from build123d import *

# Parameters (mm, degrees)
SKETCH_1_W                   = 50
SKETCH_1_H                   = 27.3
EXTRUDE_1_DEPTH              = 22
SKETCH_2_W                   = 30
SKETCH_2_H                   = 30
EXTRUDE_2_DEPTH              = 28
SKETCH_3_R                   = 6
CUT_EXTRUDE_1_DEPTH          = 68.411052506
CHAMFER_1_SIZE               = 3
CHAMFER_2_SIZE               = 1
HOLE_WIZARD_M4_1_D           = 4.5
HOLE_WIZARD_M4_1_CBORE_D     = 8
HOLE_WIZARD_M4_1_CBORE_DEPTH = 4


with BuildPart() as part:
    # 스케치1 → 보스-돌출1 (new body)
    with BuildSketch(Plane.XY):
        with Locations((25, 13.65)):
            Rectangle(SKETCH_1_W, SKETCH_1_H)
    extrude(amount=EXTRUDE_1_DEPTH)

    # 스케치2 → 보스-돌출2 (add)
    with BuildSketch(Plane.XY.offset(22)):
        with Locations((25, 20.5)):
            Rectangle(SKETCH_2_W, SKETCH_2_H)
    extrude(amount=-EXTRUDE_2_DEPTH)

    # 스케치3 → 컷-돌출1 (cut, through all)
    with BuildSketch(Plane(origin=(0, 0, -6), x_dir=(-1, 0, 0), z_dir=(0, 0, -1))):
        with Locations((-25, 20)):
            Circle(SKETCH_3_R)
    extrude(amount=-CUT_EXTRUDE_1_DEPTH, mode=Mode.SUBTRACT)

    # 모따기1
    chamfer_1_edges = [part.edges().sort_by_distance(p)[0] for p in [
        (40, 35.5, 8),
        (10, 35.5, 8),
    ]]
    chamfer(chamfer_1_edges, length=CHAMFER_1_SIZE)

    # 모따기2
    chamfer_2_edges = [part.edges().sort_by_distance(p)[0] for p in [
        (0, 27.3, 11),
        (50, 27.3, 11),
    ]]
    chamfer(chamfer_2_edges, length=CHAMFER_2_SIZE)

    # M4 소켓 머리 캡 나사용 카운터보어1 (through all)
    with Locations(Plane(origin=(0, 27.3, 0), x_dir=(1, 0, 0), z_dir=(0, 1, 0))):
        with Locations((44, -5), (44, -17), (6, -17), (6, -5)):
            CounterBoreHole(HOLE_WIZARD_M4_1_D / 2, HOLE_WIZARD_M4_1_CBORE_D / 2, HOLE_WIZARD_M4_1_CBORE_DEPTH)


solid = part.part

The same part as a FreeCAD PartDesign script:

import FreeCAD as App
import Part
import Sketcher

V = App.Vector


def edges_at(feature, points):
    """Names of the edges that pass closest to the given points."""
    edges = feature.Shape.Edges
    near = lambda p: min(range(len(edges)), key=lambda i: edges[i].distToShape(Part.Vertex(*p))[0])
    return sorted({f"Edge{near(p) + 1}" for p in points})

doc = App.newDocument("Part")
body = doc.addObject("PartDesign::Body", "Body")

# Sketch on XY plane
sketch1 = body.newObject("Sketcher::SketchObject", "Sketch")
sketch1.AttachmentSupport = (doc.getObject("XY_Plane"), [""])
sketch1.MapMode = "FlatFace"
sketch1.addGeometry(Part.LineSegment(V(0, 27.3, 0), V(0, 0, 0)), False)
sketch1.addGeometry(Part.LineSegment(V(0, 0, 0), V(50, 0, 0)), False)
sketch1.addGeometry(Part.LineSegment(V(50, 0, 0), V(50, 27.3, 0)), False)
sketch1.addGeometry(Part.LineSegment(V(50, 27.3, 0), V(0, 27.3, 0)), False)
sketch1.addConstraint(Sketcher.Constraint("Coincident", 0, 2, 1, 1))
sketch1.addConstraint(Sketcher.Constraint("Coincident", 1, 2, 2, 1))
sketch1.addConstraint(Sketcher.Constraint("Coincident", 2, 2, 3, 1))
sketch1.addConstraint(Sketcher.Constraint("Coincident", 3, 2, 0, 1))
sketch1.addConstraint(Sketcher.Constraint("Vertical", 0))
sketch1.addConstraint(Sketcher.Constraint("Horizontal", 1))
sketch1.addConstraint(Sketcher.Constraint("Vertical", 2))
sketch1.addConstraint(Sketcher.Constraint("Horizontal", 3))
sketch1.addConstraint(Sketcher.Constraint("Coincident", 0, 2, -1, 1))
sketch1.addConstraint(Sketcher.Constraint("DistanceX", 1, 1, 1, 2, 50.0))
sketch1.addConstraint(Sketcher.Constraint("DistanceY", 0, 2, 0, 1, 27.3))
pad1 = body.newObject("PartDesign::Pad", "Pad")
pad1.Profile = sketch1
pad1.Length = 22

# Sketch on XY plane
sketch2 = body.newObject("Sketcher::SketchObject", "Sketch001")
sketch2.AttachmentSupport = (doc.getObject("XY_Plane"), [""])
sketch2.MapMode = "FlatFace"
sketch2.AttachmentOffset = App.Placement(V(0, 0, 22), App.Rotation())
sketch2.addGeometry(Part.LineSegment(V(10, 35.5, 0), V(10, 5.5, 0)), False)
sketch2.addGeometry(Part.LineSegment(V(10, 5.5, 0), V(40, 5.5, 0)), False)
sketch2.addGeometry(Part.LineSegment(V(40, 5.5, 0), V(40, 35.5, 0)), False)
sketch2.addGeometry(Part.LineSegment(V(40, 35.5, 0), V(10, 35.5, 0)), False)
sketch2.addConstraint(Sketcher.Constraint("Coincident", 0, 2, 1, 1))
sketch2.addConstraint(Sketcher.Constraint("Coincident", 1, 2, 2, 1))
sketch2.addConstraint(Sketcher.Constraint("Coincident", 2, 2, 3, 1))
sketch2.addConstraint(Sketcher.Constraint("Coincident", 3, 2, 0, 1))
sketch2.addConstraint(Sketcher.Constraint("Vertical", 0))
sketch2.addConstraint(Sketcher.Constraint("Horizontal", 1))
sketch2.addConstraint(Sketcher.Constraint("Vertical", 2))
sketch2.addConstraint(Sketcher.Constraint("Horizontal", 3))
sketch2.addConstraint(Sketcher.Constraint("Equal", 3, 0))
sketch2.addConstraint(Sketcher.Constraint("DistanceX", 1, 1, 1, 2, 30.0))
sketch2.addConstraint(Sketcher.Constraint("DistanceX", -1, 1, 0, 2, 10.0))
sketch2.addConstraint(Sketcher.Constraint("DistanceY", -1, 1, 0, 2, 5.5))
pad2 = body.newObject("PartDesign::Pad", "Pad001")
pad2.Profile = sketch2
pad2.Length = 28
pad2.Reversed = True

# Sketch on XY plane
sketch3 = body.newObject("Sketcher::SketchObject", "Sketch002")
sketch3.AttachmentSupport = (doc.getObject("XY_Plane"), [""])
sketch3.MapMode = "FlatFace"
sketch3.AttachmentOffset = App.Placement(V(0, 0, -6), App.Rotation())
sketch3.addGeometry(Part.Circle(V(25, 20, 0), V(0, 0, 1), 6), False)
sketch3.addConstraint(Sketcher.Constraint("Diameter", 0, 12.0))
sketch3.addConstraint(Sketcher.Constraint("DistanceX", -1, 1, 0, 3, 25.0))
sketch3.addConstraint(Sketcher.Constraint("DistanceY", -1, 1, 0, 3, 20.0))
pocket1 = body.newObject("PartDesign::Pocket", "Pocket")
pocket1.Profile = sketch3
pocket1.Type = "ThroughAll"
pocket1.Reversed = True
doc.recompute()

chamfer = body.newObject("PartDesign::Chamfer", "Chamfer")
chamfer.Base = (pocket1, edges_at(pocket1, [(40, 35.5, 8), (10, 35.5, 8)]))
chamfer.Size = 3
doc.recompute()

chamfer2 = body.newObject("PartDesign::Chamfer", "Chamfer001")
chamfer2.Base = (chamfer, edges_at(chamfer, [(0, 27.3, 11), (50, 27.3, 11)]))
chamfer2.Size = 1

# Sketch on XZ plane
sketch4 = body.newObject("Sketcher::SketchObject", "Sketch003")
sketch4.AttachmentSupport = (doc.getObject("XZ_Plane"), [""])
sketch4.MapMode = "FlatFace"
sketch4.AttachmentOffset = App.Placement(V(0, 0, -27.3), App.Rotation())
sketch4.addGeometry(Part.Circle(V(44, 5, 0), V(0, 0, 1), 2.25), False)
sketch4.addGeometry(Part.Circle(V(44, 17, 0), V(0, 0, 1), 2.25), False)
sketch4.addGeometry(Part.Circle(V(6, 17, 0), V(0, 0, 1), 2.25), False)
sketch4.addGeometry(Part.Circle(V(6, 5, 0), V(0, 0, 1), 2.25), False)
sketch4.addConstraint(Sketcher.Constraint("Equal", 0, 1))
sketch4.addConstraint(Sketcher.Constraint("Equal", 1, 2))
sketch4.addConstraint(Sketcher.Constraint("Equal", 2, 3))
sketch4.addConstraint(Sketcher.Constraint("Horizontal", 1, 3, 2, 3))
sketch4.addConstraint(Sketcher.Constraint("Horizontal", 0, 3, 3, 3))
sketch4.addConstraint(Sketcher.Constraint("Vertical", 0, 3, 1, 3))
sketch4.addConstraint(Sketcher.Constraint("Vertical", 2, 3, 3, 3))
sketch4.addConstraint(Sketcher.Constraint("Diameter", 0, 4.5))
sketch4.addConstraint(Sketcher.Constraint("DistanceX", -1, 1, 0, 3, 44.0))
sketch4.addConstraint(Sketcher.Constraint("DistanceY", -1, 1, 0, 3, 5.0))
sketch4.addConstraint(Sketcher.Constraint("DistanceY", -1, 1, 1, 3, 17.0))
sketch4.addConstraint(Sketcher.Constraint("DistanceX", -1, 1, 2, 3, 6.0))
doc.recompute()
hole = body.newObject("PartDesign::Hole", "Hole")
hole.Profile = sketch4
hole.ThreadType = "None"
hole.Diameter = 4.5
hole.DepthType = "ThroughAll"
hole.HoleCutType = "Counterbore"
hole.HoleCutDiameter = 8
hole.HoleCutDepth = 4
hole.Reversed = True

doc.recompute()
